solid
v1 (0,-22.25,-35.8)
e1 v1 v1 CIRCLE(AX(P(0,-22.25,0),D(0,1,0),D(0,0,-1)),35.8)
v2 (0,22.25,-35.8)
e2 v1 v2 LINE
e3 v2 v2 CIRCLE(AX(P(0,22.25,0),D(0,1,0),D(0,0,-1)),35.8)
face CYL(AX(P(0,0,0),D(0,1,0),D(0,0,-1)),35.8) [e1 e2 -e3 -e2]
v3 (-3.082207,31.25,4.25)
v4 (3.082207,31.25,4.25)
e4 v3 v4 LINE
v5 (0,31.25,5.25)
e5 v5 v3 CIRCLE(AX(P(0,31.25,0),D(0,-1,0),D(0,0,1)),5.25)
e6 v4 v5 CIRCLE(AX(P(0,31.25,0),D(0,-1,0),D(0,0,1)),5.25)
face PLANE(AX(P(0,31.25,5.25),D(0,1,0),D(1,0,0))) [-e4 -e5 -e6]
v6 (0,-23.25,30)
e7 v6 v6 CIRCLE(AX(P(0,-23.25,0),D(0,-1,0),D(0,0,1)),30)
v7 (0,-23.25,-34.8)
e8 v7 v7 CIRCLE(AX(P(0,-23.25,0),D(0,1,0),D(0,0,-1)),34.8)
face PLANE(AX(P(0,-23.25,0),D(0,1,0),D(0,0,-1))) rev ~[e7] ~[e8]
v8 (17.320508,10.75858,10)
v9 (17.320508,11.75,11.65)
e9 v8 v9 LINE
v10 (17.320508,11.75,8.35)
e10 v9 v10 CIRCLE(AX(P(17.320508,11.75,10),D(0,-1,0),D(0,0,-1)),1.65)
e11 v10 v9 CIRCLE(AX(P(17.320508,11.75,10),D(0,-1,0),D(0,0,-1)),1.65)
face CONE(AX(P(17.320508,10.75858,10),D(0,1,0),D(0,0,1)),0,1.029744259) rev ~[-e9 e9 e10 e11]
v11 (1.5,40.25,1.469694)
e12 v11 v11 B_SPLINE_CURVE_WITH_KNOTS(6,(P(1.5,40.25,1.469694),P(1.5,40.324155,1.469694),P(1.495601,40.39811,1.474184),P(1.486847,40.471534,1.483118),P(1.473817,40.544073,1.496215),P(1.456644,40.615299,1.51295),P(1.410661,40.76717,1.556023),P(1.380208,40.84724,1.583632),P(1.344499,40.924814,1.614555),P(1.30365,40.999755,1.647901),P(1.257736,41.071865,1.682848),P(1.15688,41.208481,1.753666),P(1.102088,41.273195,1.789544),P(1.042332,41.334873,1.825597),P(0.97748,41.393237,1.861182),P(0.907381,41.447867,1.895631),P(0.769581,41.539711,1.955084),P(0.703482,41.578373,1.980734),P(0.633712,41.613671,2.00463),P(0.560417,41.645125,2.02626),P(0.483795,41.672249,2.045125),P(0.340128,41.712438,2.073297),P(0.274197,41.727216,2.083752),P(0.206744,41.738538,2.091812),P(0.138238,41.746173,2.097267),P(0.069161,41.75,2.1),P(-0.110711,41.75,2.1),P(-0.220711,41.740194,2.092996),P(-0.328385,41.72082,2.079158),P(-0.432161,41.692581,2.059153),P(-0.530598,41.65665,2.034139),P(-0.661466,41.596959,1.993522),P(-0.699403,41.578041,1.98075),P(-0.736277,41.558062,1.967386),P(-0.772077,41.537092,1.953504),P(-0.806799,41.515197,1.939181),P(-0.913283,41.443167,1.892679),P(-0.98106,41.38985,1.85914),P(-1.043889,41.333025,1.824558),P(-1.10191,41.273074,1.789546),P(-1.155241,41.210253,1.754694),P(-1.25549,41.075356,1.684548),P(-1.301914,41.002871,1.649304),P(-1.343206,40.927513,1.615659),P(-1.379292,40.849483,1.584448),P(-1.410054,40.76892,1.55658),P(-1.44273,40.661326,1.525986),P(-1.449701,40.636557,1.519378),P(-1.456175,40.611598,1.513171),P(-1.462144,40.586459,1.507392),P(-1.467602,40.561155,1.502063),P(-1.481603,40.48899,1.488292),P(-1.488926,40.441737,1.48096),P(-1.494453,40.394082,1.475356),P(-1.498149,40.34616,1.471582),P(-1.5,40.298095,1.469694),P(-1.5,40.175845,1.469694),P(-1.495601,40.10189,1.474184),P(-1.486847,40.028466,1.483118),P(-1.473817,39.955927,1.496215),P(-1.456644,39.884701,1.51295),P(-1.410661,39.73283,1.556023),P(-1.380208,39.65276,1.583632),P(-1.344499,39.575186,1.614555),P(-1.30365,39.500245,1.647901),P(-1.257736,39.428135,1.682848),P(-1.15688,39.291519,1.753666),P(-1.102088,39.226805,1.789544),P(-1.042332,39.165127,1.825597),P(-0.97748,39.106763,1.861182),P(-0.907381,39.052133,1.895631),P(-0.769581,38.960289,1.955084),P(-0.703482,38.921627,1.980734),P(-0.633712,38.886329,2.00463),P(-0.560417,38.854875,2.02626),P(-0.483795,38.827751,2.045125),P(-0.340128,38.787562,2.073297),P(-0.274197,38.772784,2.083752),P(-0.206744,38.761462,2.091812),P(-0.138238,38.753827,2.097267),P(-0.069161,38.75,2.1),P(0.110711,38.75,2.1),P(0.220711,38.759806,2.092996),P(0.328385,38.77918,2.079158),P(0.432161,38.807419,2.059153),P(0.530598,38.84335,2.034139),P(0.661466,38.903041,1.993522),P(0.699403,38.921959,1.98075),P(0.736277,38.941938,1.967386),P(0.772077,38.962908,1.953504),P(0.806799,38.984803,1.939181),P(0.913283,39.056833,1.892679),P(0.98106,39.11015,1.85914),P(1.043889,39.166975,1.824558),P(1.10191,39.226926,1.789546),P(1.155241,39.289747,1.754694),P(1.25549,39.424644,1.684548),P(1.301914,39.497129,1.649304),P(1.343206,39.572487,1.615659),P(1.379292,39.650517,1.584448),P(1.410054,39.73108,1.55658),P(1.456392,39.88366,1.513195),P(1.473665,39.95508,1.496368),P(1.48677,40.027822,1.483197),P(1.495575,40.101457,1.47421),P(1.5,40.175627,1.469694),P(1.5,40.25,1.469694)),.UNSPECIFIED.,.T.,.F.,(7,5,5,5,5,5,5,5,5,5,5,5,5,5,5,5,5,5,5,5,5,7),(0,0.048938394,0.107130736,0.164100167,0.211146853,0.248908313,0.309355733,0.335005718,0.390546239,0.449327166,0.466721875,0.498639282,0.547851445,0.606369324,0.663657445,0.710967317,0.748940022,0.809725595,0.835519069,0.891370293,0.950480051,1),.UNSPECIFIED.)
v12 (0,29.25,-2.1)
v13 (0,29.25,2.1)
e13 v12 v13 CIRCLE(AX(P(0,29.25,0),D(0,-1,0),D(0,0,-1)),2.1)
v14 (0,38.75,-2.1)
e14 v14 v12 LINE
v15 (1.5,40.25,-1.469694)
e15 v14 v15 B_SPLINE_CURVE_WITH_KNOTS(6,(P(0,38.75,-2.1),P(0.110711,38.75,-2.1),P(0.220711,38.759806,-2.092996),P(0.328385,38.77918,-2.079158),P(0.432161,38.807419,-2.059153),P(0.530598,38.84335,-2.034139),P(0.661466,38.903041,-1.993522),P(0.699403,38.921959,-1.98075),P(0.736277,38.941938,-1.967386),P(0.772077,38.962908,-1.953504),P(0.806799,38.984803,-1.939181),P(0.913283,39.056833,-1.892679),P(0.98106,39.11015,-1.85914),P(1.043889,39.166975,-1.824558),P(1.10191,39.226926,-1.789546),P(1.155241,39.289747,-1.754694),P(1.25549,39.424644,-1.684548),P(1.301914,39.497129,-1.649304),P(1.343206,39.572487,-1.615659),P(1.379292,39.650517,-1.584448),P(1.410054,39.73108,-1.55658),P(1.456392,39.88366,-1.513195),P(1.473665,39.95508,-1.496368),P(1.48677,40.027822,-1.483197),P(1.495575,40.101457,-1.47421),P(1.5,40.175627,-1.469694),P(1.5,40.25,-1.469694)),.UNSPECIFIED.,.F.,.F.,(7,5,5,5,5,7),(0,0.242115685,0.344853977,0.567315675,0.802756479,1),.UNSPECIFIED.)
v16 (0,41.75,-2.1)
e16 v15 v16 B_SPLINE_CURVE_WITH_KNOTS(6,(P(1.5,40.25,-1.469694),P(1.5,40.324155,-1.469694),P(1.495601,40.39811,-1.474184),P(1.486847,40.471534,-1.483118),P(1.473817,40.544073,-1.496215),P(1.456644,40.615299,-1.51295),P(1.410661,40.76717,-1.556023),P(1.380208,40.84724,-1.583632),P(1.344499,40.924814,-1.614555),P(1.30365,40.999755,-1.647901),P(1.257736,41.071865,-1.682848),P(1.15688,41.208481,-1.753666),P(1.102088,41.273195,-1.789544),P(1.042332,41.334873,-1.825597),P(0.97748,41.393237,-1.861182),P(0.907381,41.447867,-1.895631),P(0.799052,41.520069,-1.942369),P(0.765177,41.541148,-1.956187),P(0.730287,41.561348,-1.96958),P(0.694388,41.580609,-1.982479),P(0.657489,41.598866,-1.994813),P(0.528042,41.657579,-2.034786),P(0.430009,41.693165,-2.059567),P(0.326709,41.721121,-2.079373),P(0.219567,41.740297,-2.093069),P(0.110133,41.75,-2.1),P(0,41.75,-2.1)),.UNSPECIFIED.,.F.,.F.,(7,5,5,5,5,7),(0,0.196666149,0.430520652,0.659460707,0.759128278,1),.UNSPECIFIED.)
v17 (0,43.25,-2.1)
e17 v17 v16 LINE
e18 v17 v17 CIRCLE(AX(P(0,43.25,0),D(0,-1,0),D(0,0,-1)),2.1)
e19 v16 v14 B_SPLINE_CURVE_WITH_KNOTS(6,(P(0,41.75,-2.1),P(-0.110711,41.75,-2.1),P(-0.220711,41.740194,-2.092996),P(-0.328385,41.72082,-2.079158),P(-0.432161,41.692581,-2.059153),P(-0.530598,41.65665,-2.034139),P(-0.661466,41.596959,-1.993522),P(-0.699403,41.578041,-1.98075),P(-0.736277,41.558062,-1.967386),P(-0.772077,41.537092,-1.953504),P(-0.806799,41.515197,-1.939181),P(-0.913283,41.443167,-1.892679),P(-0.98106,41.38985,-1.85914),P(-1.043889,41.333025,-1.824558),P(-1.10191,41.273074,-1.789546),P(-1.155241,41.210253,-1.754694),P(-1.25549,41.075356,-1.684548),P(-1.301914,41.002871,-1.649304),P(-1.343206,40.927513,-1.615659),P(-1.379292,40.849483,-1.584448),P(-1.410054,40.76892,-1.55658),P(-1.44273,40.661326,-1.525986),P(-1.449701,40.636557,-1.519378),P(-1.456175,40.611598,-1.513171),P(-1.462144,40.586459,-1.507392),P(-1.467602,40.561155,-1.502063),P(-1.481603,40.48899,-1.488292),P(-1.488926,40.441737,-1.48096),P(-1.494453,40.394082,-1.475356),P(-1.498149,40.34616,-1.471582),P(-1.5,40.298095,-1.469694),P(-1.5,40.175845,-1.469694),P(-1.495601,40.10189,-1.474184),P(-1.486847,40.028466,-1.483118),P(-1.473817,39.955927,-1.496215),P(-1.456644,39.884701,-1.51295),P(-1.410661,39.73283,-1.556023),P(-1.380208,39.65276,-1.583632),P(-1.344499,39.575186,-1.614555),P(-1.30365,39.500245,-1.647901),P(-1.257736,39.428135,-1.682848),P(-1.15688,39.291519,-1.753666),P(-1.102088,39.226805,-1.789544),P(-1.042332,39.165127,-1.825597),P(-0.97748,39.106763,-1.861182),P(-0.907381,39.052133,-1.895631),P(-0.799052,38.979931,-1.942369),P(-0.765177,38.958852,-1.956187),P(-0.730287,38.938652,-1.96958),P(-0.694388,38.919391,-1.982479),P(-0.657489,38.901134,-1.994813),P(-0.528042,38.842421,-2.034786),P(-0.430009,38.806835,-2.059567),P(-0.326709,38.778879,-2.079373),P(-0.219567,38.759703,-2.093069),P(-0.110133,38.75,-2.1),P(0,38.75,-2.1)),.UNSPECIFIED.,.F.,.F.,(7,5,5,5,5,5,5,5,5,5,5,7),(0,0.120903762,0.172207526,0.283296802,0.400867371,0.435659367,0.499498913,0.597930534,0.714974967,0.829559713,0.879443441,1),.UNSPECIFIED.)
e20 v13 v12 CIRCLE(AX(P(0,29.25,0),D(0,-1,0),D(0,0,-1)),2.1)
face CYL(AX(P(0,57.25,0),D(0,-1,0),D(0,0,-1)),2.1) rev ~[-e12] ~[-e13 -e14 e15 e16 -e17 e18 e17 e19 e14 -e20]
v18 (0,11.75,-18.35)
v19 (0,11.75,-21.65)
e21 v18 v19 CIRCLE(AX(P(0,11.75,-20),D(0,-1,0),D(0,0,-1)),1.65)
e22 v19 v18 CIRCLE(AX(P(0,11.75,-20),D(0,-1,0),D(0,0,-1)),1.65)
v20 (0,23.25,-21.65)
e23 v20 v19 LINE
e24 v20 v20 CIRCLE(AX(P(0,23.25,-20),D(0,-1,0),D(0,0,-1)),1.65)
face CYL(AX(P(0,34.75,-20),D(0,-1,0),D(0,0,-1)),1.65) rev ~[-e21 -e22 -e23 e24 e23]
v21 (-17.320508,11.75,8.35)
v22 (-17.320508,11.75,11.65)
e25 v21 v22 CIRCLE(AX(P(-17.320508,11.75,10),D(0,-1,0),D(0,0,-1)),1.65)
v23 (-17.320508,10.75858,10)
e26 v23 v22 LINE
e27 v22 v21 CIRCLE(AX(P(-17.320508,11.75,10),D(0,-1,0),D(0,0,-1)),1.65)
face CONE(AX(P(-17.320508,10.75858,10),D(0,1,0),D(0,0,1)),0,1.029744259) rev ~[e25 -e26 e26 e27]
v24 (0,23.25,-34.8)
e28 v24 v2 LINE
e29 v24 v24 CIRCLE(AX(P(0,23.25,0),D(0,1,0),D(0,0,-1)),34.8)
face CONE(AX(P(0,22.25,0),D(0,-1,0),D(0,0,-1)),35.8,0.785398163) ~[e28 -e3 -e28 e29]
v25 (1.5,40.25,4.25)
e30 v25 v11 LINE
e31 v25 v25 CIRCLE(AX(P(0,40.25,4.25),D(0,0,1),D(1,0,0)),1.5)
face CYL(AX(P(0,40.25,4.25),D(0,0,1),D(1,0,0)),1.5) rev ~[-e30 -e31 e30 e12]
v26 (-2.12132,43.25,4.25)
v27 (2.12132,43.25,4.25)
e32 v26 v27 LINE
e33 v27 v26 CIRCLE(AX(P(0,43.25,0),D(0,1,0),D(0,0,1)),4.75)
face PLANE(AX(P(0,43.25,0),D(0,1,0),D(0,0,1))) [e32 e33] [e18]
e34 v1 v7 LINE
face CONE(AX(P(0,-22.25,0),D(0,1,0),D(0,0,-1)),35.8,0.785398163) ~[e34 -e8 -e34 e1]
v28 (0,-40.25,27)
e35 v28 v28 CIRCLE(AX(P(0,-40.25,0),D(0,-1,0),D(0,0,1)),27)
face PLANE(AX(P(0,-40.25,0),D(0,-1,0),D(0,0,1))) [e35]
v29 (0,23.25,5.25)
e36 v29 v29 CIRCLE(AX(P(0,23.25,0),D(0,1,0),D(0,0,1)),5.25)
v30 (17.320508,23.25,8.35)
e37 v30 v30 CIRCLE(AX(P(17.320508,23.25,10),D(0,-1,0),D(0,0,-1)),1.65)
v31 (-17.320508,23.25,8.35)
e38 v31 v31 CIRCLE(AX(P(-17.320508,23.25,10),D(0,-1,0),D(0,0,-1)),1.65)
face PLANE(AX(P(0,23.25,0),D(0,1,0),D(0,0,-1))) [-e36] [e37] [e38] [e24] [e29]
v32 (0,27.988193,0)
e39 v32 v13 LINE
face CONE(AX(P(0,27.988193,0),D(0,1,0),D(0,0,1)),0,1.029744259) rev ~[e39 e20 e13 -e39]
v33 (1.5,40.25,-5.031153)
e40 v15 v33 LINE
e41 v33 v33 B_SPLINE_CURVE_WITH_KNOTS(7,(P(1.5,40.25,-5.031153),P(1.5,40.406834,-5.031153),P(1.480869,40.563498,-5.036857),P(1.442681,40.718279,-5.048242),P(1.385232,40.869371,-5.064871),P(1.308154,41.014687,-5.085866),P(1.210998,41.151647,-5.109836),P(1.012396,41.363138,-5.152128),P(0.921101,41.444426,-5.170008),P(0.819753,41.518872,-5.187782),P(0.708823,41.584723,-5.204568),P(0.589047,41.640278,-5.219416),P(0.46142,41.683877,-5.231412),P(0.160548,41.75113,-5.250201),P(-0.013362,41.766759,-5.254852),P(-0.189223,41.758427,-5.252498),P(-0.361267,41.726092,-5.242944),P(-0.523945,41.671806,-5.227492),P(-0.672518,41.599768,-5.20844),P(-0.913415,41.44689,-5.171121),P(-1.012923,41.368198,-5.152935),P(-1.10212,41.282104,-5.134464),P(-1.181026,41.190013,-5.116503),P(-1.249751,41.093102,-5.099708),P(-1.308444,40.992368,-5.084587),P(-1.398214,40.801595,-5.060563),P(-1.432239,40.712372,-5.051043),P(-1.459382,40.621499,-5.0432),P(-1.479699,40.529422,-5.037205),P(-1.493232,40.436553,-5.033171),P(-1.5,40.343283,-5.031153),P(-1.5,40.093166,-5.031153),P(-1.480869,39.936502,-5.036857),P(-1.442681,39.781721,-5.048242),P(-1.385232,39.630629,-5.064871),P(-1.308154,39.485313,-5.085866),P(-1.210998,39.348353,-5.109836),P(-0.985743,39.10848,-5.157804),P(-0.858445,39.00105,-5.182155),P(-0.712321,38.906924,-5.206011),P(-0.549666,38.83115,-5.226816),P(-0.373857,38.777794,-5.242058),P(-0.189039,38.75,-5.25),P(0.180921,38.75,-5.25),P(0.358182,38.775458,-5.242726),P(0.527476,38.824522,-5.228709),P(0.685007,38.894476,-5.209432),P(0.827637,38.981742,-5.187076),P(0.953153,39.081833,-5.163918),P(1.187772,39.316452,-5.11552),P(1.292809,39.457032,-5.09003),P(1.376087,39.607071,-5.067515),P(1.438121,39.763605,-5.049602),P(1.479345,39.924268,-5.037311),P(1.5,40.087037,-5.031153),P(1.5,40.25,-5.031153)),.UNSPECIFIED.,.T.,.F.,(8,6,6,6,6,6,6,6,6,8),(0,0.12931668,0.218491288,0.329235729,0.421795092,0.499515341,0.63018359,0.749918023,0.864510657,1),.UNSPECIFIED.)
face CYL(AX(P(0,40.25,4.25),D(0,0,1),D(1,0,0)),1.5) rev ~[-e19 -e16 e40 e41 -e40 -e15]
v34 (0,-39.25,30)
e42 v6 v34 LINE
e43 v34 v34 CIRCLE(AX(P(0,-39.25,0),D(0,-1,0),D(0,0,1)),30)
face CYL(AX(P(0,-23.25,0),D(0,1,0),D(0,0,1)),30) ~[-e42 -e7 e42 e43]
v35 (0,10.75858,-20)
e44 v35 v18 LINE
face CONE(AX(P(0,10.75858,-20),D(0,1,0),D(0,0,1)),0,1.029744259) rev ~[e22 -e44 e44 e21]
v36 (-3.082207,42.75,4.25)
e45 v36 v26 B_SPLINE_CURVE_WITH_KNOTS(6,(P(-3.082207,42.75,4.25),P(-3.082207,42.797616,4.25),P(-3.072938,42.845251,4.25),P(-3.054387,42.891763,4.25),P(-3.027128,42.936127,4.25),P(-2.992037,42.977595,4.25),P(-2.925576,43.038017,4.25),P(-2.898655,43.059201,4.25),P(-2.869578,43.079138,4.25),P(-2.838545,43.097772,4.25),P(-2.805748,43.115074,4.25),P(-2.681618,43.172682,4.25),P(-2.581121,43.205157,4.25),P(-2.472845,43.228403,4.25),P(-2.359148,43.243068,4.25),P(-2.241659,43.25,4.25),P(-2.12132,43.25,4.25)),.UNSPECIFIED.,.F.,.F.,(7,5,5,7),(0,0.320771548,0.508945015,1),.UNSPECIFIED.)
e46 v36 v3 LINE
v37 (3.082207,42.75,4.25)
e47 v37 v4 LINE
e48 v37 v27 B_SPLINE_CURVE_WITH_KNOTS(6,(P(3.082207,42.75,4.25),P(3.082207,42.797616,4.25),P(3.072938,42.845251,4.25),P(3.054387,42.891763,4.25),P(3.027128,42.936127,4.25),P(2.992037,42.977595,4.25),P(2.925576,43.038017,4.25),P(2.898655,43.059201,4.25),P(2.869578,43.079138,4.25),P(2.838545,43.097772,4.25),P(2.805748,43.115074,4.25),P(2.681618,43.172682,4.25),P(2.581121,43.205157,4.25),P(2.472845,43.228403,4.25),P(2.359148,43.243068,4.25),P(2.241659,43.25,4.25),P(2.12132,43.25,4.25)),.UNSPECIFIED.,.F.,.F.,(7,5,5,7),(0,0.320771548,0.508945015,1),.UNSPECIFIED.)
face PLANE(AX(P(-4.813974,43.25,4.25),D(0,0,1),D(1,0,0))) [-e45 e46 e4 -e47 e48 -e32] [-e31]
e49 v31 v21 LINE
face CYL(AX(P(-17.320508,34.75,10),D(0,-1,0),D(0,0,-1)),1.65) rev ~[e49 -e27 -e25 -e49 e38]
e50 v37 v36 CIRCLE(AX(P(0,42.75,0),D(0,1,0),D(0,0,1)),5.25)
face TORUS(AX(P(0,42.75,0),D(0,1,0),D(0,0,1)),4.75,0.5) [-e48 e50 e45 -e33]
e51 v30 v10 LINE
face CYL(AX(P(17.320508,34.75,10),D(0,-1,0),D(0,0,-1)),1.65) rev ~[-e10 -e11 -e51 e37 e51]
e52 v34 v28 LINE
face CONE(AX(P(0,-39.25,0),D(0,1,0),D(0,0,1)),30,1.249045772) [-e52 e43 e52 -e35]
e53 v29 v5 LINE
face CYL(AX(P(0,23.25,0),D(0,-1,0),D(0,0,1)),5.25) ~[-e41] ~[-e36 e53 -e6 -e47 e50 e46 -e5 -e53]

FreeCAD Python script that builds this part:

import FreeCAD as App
import Part
import Sketcher
from FreeCAD import Vector
Q = App.Units.Quantity


def edges_at(feature, points):
    """Names of the edges that pass closest to the given points."""
    edges = feature.Shape.Edges
    near = lambda p: min(range(len(edges)), key=lambda i: edges[i].distToShape(Part.Vertex(*p))[0])
    return sorted({f"Edge{near(p) + 1}" for p in points})

doc = App.newDocument("Part")
params = doc.addObject("Spreadsheet::Sheet", "Params")
for row, (alias, value) in enumerate([
    ("sketch1_diameter", "71.6 mm"),
    ("pad1_length", "46.5 mm"),
    ("sketch2_diameter", "3.3 mm"),
    ("hole_diameter", "3.3 mm"),
    ("hole_depth", "11.5 mm"),
    ("sketch3_diameter", "10.5 mm"),
    ("pad2_length", "20 mm"),
    ("fillet_radius", "0.5 mm"),
    ("sketch4_height", "2 mm"),
    ("pocket1_length", "12 mm"),
    ("sketch5_diameter", "4.2 mm"),
    ("hole2_diameter", "4.2 mm"),
    ("hole2_depth", "14 mm"),
    ("chamfer_size", "1 mm"),
    ("sketch6_diameter", "60 mm"),
    ("pad3_length", "17 mm"),
    ("chamfer2_size", "1 mm"),
    ("chamfer3_size", "1 mm"),
    ("chamfer3_size2", "3 mm"),
    ("sketch7_diameter", "3 mm"),
], start=1):
    params.set(f"A{row}", alias)
    params.set(f"B{row}", "=" + value)
    params.setAlias(f"B{row}", alias)

body = doc.addObject("PartDesign::Body", "Body")

# Sketch on XZ plane
sketch1 = body.newObject("Sketcher::SketchObject", "Sketch")
sketch1.AttachmentSupport = (doc.getObject("XZ_Plane"), [""])
sketch1.MapMode = "FlatFace"
sketch1.addGeometry(Part.Circle(Vector(0, 0, 0), Vector(0, 0, 1), 36), False)
sketch1.addConstraint([
    Sketcher.Constraint("Coincident", 0, 3, -1, 1),
    Sketcher.Constraint("Diameter", 0, Q("71.6 mm")),
])
sketch1.setExpression("Constraints[1]", "Params.sketch1_diameter")
pad1 = body.newObject("PartDesign::Pad", "Pad")
pad1.Profile = sketch1
pad1.setExpression("Length", "Params.pad1_length")
pad1.Midplane = True

# Sketch on XZ plane
sketch2 = body.newObject("Sketcher::SketchObject", "Sketch001")
sketch2.AttachmentSupport = (doc.getObject("XZ_Plane"), [""])
sketch2.MapMode = "FlatFace"
sketch2.AttachmentOffset = App.Placement(Vector(0, 0, -23.25), App.Rotation())
sketch2.addGeometry([
    Part.Circle(Vector(0, -20, 0), Vector(0, 0, 1), 1.6),
    Part.Circle(Vector(-17.3, 10, 0), Vector(0, 0, 1), 1.6),
    Part.Circle(Vector(17.3, 10, 0), Vector(0, 0, 1), 1.6),
], False)
sketch2.addConstraint([
    Sketcher.Constraint("Equal", 0, 1),
    Sketcher.Constraint("Equal", 1, 2),
    Sketcher.Constraint("Symmetric", 1, 3, 2, 3, -2),
    Sketcher.Constraint("PointOnObject", 0, 3, -2),
    Sketcher.Constraint("Diameter", 0, Q("3.3 mm")),
    Sketcher.Constraint("DistanceY", 0, 3, -1, 1, Q("20 mm")),
    Sketcher.Constraint("DistanceY", -1, 1, 1, 3, Q("10 mm")),
    Sketcher.Constraint("DistanceX", 1, 3, -1, 1, Q("17.320508 mm")),
])
sketch2.setExpression("Constraints[4]", "Params.sketch2_diameter")
doc.recompute()
hole = body.newObject("PartDesign::Hole", "Hole")
hole.Profile = sketch2
hole.ThreadType = "None"
hole.setExpression("Diameter", "Params.hole_diameter")
hole.DepthType = "Dimension"
hole.setExpression("Depth", "Params.hole_depth")
hole.DrillPoint = "Angled"
hole.DrillPointAngle = 118
hole.Reversed = True

# Sketch on XZ plane
sketch3 = body.newObject("Sketcher::SketchObject", "Sketch002")
sketch3.AttachmentSupport = (doc.getObject("XZ_Plane"), [""])
sketch3.MapMode = "FlatFace"
sketch3.AttachmentOffset = App.Placement(Vector(0, 0, -23.25), App.Rotation())
sketch3.addGeometry(Part.Circle(Vector(0, 0, 0), Vector(0, 0, 1), 5), False)
sketch3.addConstraint([
    Sketcher.Constraint("Coincident", 0, 3, -1, 1),
    Sketcher.Constraint("Diameter", 0, Q("10.5 mm")),
])
sketch3.setExpression("Constraints[1]", "Params.sketch3_diameter")
pad2 = body.newObject("PartDesign::Pad", "Pad001")
pad2.Profile = sketch3
pad2.setExpression("Length", "Params.pad2_length")
pad2.Reversed = True
doc.recompute()

fillet = body.newObject("PartDesign::Fillet", "Fillet")
fillet.Base = (pad2, edges_at(pad2, [(0, 43.25, -5.25)]))
fillet.setExpression("Radius", "Params.fillet_radius")

# Sketch on XZ plane
sketch4 = body.newObject("Sketcher::SketchObject", "Sketch003")
sketch4.AttachmentSupport = (doc.getObject("XZ_Plane"), [""])
sketch4.MapMode = "FlatFace"
sketch4.AttachmentOffset = App.Placement(Vector(0, 0, -43.25), App.Rotation())
sketch4.addGeometry([
    Part.LineSegment(Vector(-4.8, 4.2, 0), Vector(-4.8, 6.2, 0)),
    Part.LineSegment(Vector(-4.8, 6.2, 0), Vector(4.8, 6.2, 0)),
    Part.LineSegment(Vector(4.8, 6.2, 0), Vector(4.8, 4.2, 0)),
    Part.LineSegment(Vector(4.8, 4.2, 0), Vector(-4.8, 4.2, 0)),
], False)
sketch4.addConstraint([
    Sketcher.Constraint("Coincident", 0, 2, 1, 1),
    Sketcher.Constraint("Coincident", 1, 2, 2, 1),
    Sketcher.Constraint("Coincident", 2, 2, 3, 1),
    Sketcher.Constraint("Coincident", 3, 2, 0, 1),
    Sketcher.Constraint("Vertical", 0),
    Sketcher.Constraint("Horizontal", 1),
    Sketcher.Constraint("Vertical", 2),
    Sketcher.Constraint("Horizontal", 3),
    Sketcher.Constraint("DistanceY", 0, 1, 0, 2, Q("2 mm")),
    Sketcher.Constraint("DistanceY", -1, 1, 0, 2, Q("6.25 mm")),
    Sketcher.Constraint("DistanceX", 1, 1, 1, 2, Q("9.627947 mm")),
    Sketcher.Constraint("DistanceX", 0, 2, -1, 1, Q("4.813974 mm")),
])
sketch4.setExpression("Constraints[8]", "Params.sketch4_height")
pocket1 = body.newObject("PartDesign::Pocket", "Pocket")
pocket1.Profile = sketch4
pocket1.setExpression("Length", "Params.pocket1_length")
pocket1.Reversed = True

# Sketch on XZ plane
sketch5 = body.newObject("Sketcher::SketchObject", "Sketch004")
sketch5.AttachmentSupport = (doc.getObject("XZ_Plane"), [""])
sketch5.MapMode = "FlatFace"
sketch5.AttachmentOffset = App.Placement(Vector(0, 0, -43.25), App.Rotation())
sketch5.addGeometry(Part.Circle(Vector(0, 0, 0), Vector(0, 0, 1), 2.1), False)
sketch5.addConstraint([
    Sketcher.Constraint("Coincident", 0, 3, -1, 1),
    Sketcher.Constraint("Diameter", 0, Q("4.2 mm")),
])
sketch5.setExpression("Constraints[1]", "Params.sketch5_diameter")
doc.recompute()
hole2 = body.newObject("PartDesign::Hole", "Hole001")
hole2.Profile = sketch5
hole2.ThreadType = "None"
hole2.setExpression("Diameter", "Params.hole2_diameter")
hole2.DepthType = "Dimension"
hole2.setExpression("Depth", "Params.hole2_depth")
hole2.DrillPoint = "Angled"
hole2.DrillPointAngle = 118
hole2.Reversed = True
doc.recompute()

chamfer = body.newObject("PartDesign::Chamfer", "Chamfer")
chamfer.Base = (hole2, edges_at(hole2, [(0, 23.25, 35.8)]))
chamfer.setExpression("Size", "Params.chamfer_size")

# Sketch on XZ plane
sketch6 = body.newObject("Sketcher::SketchObject", "Sketch005")
sketch6.AttachmentSupport = (doc.getObject("XZ_Plane"), [""])
sketch6.MapMode = "FlatFace"
sketch6.AttachmentOffset = App.Placement(Vector(0, 0, 23.25), App.Rotation())
sketch6.addGeometry(Part.Circle(Vector(0, 0, 0), Vector(0, 0, 1), 30), False)
sketch6.addConstraint([
    Sketcher.Constraint("Coincident", 0, 3, -1, 1),
    Sketcher.Constraint("Diameter", 0, Q("60 mm")),
])
sketch6.setExpression("Constraints[1]", "Params.sketch6_diameter")
pad3 = body.newObject("PartDesign::Pad", "Pad002")
pad3.Profile = sketch6
pad3.setExpression("Length", "Params.pad3_length")
doc.recompute()

chamfer2 = body.newObject("PartDesign::Chamfer", "Chamfer001")
chamfer2.Base = (pad3, edges_at(pad3, [(0, -23.25, 35.8)]))
chamfer2.setExpression("Size", "Params.chamfer2_size")
doc.recompute()

chamfer3 = body.newObject("PartDesign::Chamfer", "Chamfer002")
chamfer3.Base = (chamfer2, edges_at(chamfer2, [(0, -40.25, -30)]))
chamfer3.ChamferType = "Two distances"
chamfer3.setExpression("Size", "Params.chamfer3_size")
chamfer3.setExpression("Size2", "Params.chamfer3_size2")

# Sketch on XY plane
sketch7 = body.newObject("Sketcher::SketchObject", "Sketch006")
sketch7.AttachmentSupport = (doc.getObject("XY_Plane"), [""])
sketch7.MapMode = "FlatFace"
sketch7.AttachmentOffset = App.Placement(Vector(0, 0, 4.25), App.Rotation())
sketch7.addGeometry(Part.Circle(Vector(0, 40.2, 0), Vector(0, 0, 1), 1.5), False)
sketch7.addConstraint([
    Sketcher.Constraint("PointOnObject", 0, 3, -2),
    Sketcher.Constraint("Diameter", 0, Q("3 mm")),
    Sketcher.Constraint("DistanceY", -1, 1, 0, 3, Q("40.25 mm")),
])
sketch7.setExpression("Constraints[1]", "Params.sketch7_diameter")
pocket2 = body.newObject("PartDesign::Pocket", "Pocket001")
pocket2.Profile = sketch7
pocket2.Type = "ThroughAll"

doc.recompute()
